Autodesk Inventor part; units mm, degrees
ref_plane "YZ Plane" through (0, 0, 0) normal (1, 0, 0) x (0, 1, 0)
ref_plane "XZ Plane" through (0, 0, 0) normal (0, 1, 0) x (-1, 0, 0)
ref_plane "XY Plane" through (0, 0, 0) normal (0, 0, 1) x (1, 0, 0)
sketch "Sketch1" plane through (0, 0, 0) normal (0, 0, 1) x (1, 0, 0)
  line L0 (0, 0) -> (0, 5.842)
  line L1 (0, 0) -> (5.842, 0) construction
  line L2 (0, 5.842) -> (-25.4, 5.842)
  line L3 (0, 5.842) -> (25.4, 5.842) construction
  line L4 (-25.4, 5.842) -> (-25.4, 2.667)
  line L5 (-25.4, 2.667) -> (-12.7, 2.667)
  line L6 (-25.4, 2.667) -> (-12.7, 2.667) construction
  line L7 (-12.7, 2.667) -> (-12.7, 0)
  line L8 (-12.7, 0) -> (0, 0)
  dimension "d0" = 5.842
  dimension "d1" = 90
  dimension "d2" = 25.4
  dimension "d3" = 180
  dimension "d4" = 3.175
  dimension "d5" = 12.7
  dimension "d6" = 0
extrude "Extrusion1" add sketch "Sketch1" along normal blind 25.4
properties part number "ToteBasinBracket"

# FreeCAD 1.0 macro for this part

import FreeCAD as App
import Part
import Sketcher
from FreeCAD import Vector
Q = App.Units.Quantity

doc = App.newDocument("Part")
params = doc.addObject("Spreadsheet::Sheet", "Params")
for row, (alias, value) in enumerate([
    ("sketch1_width", "1 in"),
    ("sketch1_height", "0.23 in"),
    ("sketch1_height2", "0.125 in"),
    ("pad1_length", "1 in"),
], start=1):
    params.set(f"A{row}", alias)
    params.set(f"B{row}", "=" + value)
    params.setAlias(f"B{row}", alias)

body = doc.addObject("PartDesign::Body", "Body")

# Sketch on XY plane
sketch1 = doc.addObject("Sketcher::SketchObject", "Sketch")
body.addObject(sketch1)
sketch1.AttachmentSupport = (doc.XY_Plane, [""])
sketch1.MapMode = "FlatFace"
sketch1.addGeometry([
    Part.LineSegment(Vector(-12.7, 0, 0), Vector(0, 0, 0)),  # 0
    Part.LineSegment(Vector(0, 0, 0), Vector(0, 5.842, 0)),  # 1
    Part.LineSegment(Vector(0, 5.842, 0), Vector(-25.4, 5.842, 0)),  # 2
    Part.LineSegment(Vector(-25.4, 5.842, 0), Vector(-25.4, 2.667, 0)),  # 3
    Part.LineSegment(Vector(-25.4, 2.667, 0), Vector(-12.7, 2.667, 0)),  # 4
    Part.LineSegment(Vector(-12.7, 2.667, 0), Vector(-12.7, 0, 0)),  # 5
], False)
sketch1.addConstraint([
    Sketcher.Constraint("Coincident", 0, 2, 1, 1),
    Sketcher.Constraint("Coincident", 1, 2, 2, 1),
    Sketcher.Constraint("Coincident", 2, 2, 3, 1),
    Sketcher.Constraint("Coincident", 3, 2, 4, 1),
    Sketcher.Constraint("Coincident", 4, 2, 5, 1),
    Sketcher.Constraint("Coincident", 5, 2, 0, 1),
    Sketcher.Constraint("Horizontal", 0),
    Sketcher.Constraint("Vertical", 1),
    Sketcher.Constraint("Horizontal", 2),
    Sketcher.Constraint("Vertical", 3),
    Sketcher.Constraint("Horizontal", 4),
    Sketcher.Constraint("Vertical", 5),
    Sketcher.Constraint("Coincident", 0, 2, -1, 1),
    Sketcher.Constraint("Equal", 0, 4),
    Sketcher.Constraint("DistanceX", 2, 2, 2, 1, Q("1 in")),
    Sketcher.Constraint("DistanceY", 1, 1, 1, 2, Q("0.23 in")),
    Sketcher.Constraint("DistanceY", 3, 2, 3, 1, Q("0.125 in")),
])
sketch1.setExpression("Constraints[14]", "Params.sketch1_width")
sketch1.setExpression("Constraints[15]", "Params.sketch1_height")
sketch1.setExpression("Constraints[16]", "Params.sketch1_height2")
pad1 = doc.addObject("PartDesign::Pad", "Pad")
body.addObject(pad1)
pad1.Profile = sketch1
pad1.setExpression("Length", "Params.pad1_length")

doc.recompute()
